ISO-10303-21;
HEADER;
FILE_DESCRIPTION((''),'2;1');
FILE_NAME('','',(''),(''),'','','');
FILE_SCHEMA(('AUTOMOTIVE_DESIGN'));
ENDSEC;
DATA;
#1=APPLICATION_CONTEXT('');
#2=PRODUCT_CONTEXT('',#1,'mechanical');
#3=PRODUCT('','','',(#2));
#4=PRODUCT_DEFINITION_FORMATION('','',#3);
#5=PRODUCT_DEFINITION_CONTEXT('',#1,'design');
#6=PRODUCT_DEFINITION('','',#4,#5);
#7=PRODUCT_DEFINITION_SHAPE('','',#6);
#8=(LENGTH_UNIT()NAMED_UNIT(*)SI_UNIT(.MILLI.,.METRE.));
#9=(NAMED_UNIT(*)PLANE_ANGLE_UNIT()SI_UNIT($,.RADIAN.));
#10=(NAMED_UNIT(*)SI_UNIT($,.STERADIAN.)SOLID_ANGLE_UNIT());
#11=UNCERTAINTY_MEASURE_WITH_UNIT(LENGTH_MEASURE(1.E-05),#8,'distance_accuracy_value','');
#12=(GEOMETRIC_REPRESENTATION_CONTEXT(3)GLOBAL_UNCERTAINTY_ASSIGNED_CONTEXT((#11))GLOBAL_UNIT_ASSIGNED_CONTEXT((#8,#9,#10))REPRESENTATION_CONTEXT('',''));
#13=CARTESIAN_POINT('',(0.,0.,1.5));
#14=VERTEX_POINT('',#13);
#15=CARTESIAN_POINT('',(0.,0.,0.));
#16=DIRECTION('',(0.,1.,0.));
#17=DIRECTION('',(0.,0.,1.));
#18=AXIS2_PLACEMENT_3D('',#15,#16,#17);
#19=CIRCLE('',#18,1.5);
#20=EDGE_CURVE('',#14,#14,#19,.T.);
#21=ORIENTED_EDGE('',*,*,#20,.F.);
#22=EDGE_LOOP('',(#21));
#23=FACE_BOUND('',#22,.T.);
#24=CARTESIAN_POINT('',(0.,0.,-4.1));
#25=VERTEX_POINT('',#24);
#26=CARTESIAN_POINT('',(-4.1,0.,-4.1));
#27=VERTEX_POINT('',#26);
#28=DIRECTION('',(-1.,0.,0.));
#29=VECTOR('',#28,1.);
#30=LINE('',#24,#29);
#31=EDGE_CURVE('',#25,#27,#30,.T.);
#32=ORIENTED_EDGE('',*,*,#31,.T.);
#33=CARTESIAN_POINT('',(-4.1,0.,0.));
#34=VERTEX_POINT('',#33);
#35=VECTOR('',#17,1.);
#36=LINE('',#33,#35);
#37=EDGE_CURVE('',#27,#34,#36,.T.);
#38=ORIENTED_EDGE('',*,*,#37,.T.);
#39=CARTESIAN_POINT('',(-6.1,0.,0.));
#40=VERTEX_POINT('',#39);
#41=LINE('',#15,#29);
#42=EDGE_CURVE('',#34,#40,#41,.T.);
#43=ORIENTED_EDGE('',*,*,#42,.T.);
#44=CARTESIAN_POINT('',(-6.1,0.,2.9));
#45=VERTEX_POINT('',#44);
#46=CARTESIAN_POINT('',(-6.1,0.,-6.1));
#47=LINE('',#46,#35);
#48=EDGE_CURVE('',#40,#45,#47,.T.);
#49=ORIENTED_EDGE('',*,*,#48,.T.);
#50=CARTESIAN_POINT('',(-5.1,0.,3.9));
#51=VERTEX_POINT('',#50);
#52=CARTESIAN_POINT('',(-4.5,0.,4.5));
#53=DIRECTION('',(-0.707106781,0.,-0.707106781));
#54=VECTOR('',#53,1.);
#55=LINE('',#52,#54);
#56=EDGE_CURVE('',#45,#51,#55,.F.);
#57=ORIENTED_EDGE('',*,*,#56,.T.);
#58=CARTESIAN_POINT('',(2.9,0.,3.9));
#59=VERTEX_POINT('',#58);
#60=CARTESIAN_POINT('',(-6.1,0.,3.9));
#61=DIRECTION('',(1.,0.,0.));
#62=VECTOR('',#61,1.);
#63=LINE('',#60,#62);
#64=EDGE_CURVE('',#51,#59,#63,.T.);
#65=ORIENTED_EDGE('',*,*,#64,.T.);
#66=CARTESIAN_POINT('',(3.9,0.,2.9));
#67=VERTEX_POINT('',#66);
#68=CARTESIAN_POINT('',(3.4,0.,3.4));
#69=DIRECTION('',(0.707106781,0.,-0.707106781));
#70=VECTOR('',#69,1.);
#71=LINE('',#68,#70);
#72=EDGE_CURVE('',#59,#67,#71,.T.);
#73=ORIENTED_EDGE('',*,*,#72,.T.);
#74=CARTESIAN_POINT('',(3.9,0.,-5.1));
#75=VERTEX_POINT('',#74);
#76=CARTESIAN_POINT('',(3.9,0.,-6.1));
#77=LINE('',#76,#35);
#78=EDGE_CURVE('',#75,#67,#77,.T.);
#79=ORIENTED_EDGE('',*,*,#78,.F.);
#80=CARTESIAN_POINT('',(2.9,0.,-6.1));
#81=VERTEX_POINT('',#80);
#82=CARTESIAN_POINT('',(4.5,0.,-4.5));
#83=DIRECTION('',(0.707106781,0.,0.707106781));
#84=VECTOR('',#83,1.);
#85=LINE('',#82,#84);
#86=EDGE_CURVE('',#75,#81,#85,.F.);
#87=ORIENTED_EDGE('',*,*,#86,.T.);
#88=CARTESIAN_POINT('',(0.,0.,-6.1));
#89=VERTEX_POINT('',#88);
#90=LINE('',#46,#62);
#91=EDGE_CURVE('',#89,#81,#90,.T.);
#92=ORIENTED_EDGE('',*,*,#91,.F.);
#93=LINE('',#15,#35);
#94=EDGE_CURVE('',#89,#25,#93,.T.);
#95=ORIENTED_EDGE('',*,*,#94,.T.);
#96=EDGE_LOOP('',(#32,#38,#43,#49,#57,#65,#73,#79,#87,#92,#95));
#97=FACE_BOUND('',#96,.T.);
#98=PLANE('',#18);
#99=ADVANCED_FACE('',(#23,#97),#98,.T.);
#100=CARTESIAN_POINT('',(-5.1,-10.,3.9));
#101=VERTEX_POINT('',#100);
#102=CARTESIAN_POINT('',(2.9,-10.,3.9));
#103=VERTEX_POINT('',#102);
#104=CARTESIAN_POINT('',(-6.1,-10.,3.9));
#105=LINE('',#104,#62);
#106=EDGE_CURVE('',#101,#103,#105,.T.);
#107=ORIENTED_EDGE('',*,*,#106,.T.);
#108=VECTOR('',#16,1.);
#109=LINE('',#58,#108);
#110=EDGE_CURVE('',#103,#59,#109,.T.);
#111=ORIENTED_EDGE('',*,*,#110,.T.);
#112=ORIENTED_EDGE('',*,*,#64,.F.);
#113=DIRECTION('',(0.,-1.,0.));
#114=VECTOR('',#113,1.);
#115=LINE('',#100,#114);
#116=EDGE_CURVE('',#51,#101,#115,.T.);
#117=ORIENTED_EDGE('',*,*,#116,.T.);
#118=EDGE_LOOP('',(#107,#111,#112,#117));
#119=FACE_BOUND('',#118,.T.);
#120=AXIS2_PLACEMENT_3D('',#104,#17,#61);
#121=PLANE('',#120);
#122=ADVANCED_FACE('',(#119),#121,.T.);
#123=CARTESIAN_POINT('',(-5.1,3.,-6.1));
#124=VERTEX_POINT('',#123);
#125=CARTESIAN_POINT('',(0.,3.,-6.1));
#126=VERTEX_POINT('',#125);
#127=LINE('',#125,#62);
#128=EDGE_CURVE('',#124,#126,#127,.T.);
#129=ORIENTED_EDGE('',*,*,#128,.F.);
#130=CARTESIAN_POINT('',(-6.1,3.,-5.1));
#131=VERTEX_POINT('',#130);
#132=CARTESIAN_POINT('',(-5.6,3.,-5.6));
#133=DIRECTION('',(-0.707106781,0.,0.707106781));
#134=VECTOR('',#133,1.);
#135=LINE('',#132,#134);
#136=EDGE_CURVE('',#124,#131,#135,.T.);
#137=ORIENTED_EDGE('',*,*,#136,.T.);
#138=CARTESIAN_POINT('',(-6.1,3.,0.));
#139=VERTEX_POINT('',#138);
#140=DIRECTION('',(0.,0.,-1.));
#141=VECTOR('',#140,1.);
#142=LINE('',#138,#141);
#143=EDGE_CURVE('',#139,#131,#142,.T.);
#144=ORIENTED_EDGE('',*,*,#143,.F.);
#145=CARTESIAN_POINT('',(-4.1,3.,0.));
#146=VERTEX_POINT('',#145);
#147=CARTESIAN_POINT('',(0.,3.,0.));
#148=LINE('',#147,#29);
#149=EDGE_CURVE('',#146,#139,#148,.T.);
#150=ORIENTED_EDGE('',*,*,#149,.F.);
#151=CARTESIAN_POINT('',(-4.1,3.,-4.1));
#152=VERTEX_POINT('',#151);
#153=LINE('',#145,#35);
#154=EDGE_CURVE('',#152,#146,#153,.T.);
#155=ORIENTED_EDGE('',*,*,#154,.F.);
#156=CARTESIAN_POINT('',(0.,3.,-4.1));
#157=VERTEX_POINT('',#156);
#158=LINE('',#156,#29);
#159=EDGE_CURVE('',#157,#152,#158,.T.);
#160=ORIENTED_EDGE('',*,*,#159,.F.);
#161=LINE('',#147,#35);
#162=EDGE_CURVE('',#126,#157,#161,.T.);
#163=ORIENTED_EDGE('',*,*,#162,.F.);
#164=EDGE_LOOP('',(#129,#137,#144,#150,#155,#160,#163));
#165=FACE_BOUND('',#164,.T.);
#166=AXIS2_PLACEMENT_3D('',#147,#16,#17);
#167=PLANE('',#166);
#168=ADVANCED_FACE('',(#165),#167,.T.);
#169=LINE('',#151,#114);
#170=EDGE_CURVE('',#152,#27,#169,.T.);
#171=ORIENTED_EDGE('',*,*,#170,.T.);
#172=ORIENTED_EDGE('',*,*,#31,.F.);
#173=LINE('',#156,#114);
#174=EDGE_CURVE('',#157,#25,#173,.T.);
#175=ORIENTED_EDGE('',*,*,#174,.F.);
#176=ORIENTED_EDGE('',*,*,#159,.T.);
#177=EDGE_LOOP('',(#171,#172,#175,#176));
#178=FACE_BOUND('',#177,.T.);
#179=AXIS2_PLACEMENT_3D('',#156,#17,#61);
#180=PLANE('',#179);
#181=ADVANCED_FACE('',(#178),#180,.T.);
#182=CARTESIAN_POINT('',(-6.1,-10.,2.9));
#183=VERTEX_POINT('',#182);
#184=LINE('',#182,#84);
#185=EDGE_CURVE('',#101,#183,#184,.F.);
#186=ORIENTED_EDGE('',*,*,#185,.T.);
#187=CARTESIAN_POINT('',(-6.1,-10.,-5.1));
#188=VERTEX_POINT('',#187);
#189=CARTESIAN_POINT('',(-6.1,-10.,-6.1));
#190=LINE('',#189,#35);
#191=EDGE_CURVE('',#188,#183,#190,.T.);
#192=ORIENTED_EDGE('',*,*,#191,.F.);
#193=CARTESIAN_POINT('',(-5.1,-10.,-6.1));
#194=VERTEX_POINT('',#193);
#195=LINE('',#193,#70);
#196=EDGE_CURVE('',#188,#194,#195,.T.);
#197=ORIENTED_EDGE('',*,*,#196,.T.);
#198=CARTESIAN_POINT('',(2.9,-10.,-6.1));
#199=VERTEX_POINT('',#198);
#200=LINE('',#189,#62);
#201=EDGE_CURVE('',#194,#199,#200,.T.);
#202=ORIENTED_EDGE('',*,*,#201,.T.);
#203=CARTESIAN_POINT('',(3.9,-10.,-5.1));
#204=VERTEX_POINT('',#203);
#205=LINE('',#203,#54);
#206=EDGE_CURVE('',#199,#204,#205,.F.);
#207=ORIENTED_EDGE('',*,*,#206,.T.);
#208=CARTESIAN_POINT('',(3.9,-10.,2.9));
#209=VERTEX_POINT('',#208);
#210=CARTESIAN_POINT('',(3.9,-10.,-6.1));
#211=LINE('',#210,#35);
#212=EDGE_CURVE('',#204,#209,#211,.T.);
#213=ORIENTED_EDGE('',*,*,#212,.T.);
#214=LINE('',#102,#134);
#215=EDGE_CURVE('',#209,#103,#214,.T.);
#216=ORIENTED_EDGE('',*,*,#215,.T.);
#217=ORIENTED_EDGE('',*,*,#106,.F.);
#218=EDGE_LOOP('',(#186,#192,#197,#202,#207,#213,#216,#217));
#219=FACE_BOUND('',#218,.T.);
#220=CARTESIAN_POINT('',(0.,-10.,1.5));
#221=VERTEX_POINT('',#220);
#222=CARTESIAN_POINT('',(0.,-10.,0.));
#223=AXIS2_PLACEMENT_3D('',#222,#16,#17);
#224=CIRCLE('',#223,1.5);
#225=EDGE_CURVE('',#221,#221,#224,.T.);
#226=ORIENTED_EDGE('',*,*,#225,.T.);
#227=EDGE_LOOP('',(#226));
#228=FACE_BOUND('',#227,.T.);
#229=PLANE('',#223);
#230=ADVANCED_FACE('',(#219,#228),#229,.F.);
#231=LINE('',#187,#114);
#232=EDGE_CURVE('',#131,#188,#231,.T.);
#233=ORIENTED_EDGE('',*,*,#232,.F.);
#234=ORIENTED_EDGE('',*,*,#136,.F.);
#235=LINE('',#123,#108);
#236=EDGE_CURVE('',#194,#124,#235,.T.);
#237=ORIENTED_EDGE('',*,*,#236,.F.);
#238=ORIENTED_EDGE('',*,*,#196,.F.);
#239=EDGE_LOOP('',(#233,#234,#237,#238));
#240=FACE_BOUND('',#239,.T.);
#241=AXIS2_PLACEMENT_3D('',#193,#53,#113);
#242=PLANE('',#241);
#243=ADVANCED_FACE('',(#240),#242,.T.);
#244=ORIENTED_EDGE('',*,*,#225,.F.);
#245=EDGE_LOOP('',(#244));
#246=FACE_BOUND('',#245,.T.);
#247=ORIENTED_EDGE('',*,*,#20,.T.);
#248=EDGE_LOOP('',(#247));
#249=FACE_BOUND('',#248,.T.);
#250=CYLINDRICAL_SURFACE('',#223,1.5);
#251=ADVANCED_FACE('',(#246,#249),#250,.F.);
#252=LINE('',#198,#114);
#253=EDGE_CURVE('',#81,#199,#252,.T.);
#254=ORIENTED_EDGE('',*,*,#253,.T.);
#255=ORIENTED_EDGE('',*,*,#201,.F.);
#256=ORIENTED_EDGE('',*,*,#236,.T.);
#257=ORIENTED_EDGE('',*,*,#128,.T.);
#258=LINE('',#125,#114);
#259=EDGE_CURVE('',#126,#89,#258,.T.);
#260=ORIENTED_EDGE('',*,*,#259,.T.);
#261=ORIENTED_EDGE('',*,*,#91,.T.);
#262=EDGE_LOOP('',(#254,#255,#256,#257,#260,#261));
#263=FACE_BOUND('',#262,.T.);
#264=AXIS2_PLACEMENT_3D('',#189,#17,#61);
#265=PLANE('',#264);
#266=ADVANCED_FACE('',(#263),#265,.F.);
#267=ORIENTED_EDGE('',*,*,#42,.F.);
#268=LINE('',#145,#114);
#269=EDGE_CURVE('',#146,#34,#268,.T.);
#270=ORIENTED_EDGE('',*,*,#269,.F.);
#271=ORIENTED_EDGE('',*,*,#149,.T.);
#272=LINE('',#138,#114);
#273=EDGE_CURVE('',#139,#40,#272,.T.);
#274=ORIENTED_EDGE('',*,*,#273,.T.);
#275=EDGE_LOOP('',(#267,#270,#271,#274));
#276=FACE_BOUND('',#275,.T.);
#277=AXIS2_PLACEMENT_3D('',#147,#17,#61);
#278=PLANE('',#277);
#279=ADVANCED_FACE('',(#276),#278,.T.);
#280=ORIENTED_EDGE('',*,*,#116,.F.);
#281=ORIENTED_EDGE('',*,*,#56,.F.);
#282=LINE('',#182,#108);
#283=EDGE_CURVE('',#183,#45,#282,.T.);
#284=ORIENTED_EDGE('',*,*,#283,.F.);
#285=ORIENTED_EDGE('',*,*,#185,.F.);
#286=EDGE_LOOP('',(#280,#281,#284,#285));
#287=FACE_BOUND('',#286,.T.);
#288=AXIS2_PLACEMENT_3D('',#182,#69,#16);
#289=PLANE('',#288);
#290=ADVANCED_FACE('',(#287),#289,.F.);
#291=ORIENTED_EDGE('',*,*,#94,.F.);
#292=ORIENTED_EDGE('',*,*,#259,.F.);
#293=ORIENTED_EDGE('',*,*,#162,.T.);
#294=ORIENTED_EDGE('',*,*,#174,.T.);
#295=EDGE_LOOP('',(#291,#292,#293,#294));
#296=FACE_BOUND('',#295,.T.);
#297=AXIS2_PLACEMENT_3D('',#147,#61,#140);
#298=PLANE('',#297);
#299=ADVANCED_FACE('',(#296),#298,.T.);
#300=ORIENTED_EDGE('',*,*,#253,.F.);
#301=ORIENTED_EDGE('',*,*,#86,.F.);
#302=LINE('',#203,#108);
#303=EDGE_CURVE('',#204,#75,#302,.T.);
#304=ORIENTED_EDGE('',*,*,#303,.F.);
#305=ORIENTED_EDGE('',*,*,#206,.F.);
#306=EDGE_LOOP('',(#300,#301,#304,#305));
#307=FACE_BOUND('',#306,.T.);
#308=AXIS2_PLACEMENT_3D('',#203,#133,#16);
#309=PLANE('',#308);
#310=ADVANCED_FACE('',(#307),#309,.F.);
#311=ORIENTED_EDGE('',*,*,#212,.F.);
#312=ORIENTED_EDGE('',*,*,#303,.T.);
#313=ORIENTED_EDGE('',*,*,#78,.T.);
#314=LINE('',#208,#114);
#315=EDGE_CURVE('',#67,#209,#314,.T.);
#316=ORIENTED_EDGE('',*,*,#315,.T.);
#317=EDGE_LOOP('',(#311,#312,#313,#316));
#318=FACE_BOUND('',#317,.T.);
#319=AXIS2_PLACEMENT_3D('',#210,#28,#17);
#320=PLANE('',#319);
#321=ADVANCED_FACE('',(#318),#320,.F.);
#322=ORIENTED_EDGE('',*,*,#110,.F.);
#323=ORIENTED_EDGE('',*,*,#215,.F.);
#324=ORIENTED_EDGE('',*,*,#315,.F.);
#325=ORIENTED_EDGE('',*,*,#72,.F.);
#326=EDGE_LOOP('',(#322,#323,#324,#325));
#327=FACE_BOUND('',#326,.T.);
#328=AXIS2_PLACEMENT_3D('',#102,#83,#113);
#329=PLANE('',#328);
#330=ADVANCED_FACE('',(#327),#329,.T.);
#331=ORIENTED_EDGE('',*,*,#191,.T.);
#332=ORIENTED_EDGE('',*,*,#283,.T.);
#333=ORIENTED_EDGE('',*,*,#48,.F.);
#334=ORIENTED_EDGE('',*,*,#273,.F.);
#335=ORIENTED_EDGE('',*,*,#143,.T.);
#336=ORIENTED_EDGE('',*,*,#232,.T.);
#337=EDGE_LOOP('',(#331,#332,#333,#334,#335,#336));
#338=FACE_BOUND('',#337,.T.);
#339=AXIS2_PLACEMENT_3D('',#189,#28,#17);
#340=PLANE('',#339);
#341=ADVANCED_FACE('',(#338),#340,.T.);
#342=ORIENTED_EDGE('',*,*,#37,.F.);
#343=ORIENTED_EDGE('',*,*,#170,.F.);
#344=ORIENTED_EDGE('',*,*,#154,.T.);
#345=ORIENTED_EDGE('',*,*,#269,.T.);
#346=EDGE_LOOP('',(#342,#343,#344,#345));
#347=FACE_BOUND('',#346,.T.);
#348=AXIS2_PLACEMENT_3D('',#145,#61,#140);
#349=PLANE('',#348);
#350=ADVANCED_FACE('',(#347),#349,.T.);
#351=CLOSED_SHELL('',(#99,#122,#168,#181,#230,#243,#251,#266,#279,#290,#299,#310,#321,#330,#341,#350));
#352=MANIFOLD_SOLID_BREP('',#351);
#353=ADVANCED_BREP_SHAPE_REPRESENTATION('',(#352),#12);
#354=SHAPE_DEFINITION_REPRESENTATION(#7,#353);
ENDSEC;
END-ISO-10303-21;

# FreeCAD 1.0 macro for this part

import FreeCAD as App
import Part
import Sketcher

V = App.Vector
Q = App.Units.Quantity


def edges_at(feature, points):
    """Names of the edges that pass closest to the given points."""
    edges = feature.Shape.Edges
    near = lambda p: min(range(len(edges)), key=lambda i: edges[i].distToShape(Part.Vertex(*p))[0])
    return sorted({f"Edge{near(p) + 1}" for p in points})


def add_polygon(sketch, points):
    """Adds a closed chain of lines whose ends are joined by coincident constraints."""
    first, n = sketch.GeometryCount, len(points)
    for a, b in zip(points, points[1:] + points[:1]):
        sketch.addGeometry(Part.LineSegment(App.Vector(*a, 0), App.Vector(*b, 0)), False)
    for i in range(n):
        sketch.addConstraint(Sketcher.Constraint("Coincident", first + i, 2, first + (i + 1) % n, 1))

doc = App.newDocument("Part")
params = doc.addObject("Spreadsheet::Sheet", "Params")
for row, (alias, value) in enumerate([
    ("sketch1_width", "10 mm"),
    ("pad1_length", "10 mm"),
    ("sketch2_width", "2 mm"),
    ("sketch2_width2", "6.1 mm"),
    ("pad2_length", "3 mm"),
    ("chamfer_size", "1 mm"),
    ("sketch3_diameter", "3 mm"),
], start=1):
    params.set(f"A{row}", alias)
    params.set(f"B{row}", "=" + value)
    params.setAlias(f"B{row}", alias)

body = doc.addObject("PartDesign::Body", "Body")

# Sketch on XZ plane
sketch1 = body.newObject("Sketcher::SketchObject", "Sketch")
sketch1.AttachmentSupport = (doc.getObject("XZ_Plane"), [""])
sketch1.MapMode = "FlatFace"
add_polygon(sketch1, [(-6, -6), (-6, 4), (4, 4), (4, -6)])  # lines 0-3
sketch1.addConstraint([
    Sketcher.Constraint("Vertical", 0),
    Sketcher.Constraint("Horizontal", 1),
    Sketcher.Constraint("Vertical", 2),
    Sketcher.Constraint("Horizontal", 3),
    Sketcher.Constraint("Equal", 3, 0),
    Sketcher.Constraint("DistanceX", 1, 1, 1, 2, Q("10 mm")),
    Sketcher.Constraint("DistanceX", 0, 2, -1, 1, Q("6.1 mm")),
    Sketcher.Constraint("DistanceY", -1, 1, 0, 2, Q("3.9 mm")),
])
sketch1.setExpression("Constraints[9]", "Params.sketch1_width")
pad1 = body.newObject("PartDesign::Pad", "Pad")
pad1.Profile = sketch1
pad1.setExpression("Length", "Params.pad1_length")

# Sketch on XZ plane
sketch2 = body.newObject("Sketcher::SketchObject", "Sketch001")
sketch2.AttachmentSupport = (doc.getObject("XZ_Plane"), [""])
sketch2.MapMode = "FlatFace"
add_polygon(sketch2, [(0, -4.1), (0, -6.1), (-6.1, -6.1), (-6.1, 0), (-4.1, 0), (-4.1, -4.1)])  # lines 0-5
sketch2.addConstraint([
    Sketcher.Constraint("Vertical", 0),
    Sketcher.Constraint("Horizontal", 1),
    Sketcher.Constraint("Vertical", 2),
    Sketcher.Constraint("Horizontal", 3),
    Sketcher.Constraint("Vertical", 4),
    Sketcher.Constraint("Horizontal", 5),
    Sketcher.Constraint("PointOnObject", 0, 2, -2),
    Sketcher.Constraint("PointOnObject", 2, 2, -1),
    Sketcher.Constraint("Equal", 3, 0),
    Sketcher.Constraint("Equal", 1, 2),
    Sketcher.Constraint("DistanceX", 3, 1, 3, 2, Q("2 mm")),
    Sketcher.Constraint("DistanceX", 1, 2, 1, 1, Q("6.1 mm")),
])
sketch2.setExpression("Constraints[16]", "Params.sketch2_width")
sketch2.setExpression("Constraints[17]", "Params.sketch2_width2")
pad2 = body.newObject("PartDesign::Pad", "Pad001")
pad2.Profile = sketch2
pad2.setExpression("Length", "Params.pad2_length")
pad2.Reversed = True
doc.recompute()

chamfer = body.newObject("PartDesign::Chamfer", "Chamfer")
chamfer.Base = (pad2, edges_at(pad2, [
    (-6.1, -3.5, -6.1),
    (3.9, -5, -6.1),
    (3.9, -5, 3.9),
    (-6.1, -5, 3.9),
]))
chamfer.setExpression("Size", "Params.chamfer_size")

# Sketch on XZ plane
sketch3 = body.newObject("Sketcher::SketchObject", "Sketch002")
sketch3.AttachmentSupport = (doc.getObject("XZ_Plane"), [""])
sketch3.MapMode = "FlatFace"
sketch3.addGeometry(Part.Circle(V(0, 0, 0), V(0, 0, 1), 1.5), False)
sketch3.addConstraint([
    Sketcher.Constraint("Coincident", 0, 3, -1, 1),
    Sketcher.Constraint("Diameter", 0, Q("3 mm")),
])
sketch3.setExpression("Constraints[1]", "Params.sketch3_diameter")
pocket1 = body.newObject("PartDesign::Pocket", "Pocket")
pocket1.Profile = sketch3
pocket1.Type = "ThroughAll"
pocket1.Reversed = True

doc.recompute()
